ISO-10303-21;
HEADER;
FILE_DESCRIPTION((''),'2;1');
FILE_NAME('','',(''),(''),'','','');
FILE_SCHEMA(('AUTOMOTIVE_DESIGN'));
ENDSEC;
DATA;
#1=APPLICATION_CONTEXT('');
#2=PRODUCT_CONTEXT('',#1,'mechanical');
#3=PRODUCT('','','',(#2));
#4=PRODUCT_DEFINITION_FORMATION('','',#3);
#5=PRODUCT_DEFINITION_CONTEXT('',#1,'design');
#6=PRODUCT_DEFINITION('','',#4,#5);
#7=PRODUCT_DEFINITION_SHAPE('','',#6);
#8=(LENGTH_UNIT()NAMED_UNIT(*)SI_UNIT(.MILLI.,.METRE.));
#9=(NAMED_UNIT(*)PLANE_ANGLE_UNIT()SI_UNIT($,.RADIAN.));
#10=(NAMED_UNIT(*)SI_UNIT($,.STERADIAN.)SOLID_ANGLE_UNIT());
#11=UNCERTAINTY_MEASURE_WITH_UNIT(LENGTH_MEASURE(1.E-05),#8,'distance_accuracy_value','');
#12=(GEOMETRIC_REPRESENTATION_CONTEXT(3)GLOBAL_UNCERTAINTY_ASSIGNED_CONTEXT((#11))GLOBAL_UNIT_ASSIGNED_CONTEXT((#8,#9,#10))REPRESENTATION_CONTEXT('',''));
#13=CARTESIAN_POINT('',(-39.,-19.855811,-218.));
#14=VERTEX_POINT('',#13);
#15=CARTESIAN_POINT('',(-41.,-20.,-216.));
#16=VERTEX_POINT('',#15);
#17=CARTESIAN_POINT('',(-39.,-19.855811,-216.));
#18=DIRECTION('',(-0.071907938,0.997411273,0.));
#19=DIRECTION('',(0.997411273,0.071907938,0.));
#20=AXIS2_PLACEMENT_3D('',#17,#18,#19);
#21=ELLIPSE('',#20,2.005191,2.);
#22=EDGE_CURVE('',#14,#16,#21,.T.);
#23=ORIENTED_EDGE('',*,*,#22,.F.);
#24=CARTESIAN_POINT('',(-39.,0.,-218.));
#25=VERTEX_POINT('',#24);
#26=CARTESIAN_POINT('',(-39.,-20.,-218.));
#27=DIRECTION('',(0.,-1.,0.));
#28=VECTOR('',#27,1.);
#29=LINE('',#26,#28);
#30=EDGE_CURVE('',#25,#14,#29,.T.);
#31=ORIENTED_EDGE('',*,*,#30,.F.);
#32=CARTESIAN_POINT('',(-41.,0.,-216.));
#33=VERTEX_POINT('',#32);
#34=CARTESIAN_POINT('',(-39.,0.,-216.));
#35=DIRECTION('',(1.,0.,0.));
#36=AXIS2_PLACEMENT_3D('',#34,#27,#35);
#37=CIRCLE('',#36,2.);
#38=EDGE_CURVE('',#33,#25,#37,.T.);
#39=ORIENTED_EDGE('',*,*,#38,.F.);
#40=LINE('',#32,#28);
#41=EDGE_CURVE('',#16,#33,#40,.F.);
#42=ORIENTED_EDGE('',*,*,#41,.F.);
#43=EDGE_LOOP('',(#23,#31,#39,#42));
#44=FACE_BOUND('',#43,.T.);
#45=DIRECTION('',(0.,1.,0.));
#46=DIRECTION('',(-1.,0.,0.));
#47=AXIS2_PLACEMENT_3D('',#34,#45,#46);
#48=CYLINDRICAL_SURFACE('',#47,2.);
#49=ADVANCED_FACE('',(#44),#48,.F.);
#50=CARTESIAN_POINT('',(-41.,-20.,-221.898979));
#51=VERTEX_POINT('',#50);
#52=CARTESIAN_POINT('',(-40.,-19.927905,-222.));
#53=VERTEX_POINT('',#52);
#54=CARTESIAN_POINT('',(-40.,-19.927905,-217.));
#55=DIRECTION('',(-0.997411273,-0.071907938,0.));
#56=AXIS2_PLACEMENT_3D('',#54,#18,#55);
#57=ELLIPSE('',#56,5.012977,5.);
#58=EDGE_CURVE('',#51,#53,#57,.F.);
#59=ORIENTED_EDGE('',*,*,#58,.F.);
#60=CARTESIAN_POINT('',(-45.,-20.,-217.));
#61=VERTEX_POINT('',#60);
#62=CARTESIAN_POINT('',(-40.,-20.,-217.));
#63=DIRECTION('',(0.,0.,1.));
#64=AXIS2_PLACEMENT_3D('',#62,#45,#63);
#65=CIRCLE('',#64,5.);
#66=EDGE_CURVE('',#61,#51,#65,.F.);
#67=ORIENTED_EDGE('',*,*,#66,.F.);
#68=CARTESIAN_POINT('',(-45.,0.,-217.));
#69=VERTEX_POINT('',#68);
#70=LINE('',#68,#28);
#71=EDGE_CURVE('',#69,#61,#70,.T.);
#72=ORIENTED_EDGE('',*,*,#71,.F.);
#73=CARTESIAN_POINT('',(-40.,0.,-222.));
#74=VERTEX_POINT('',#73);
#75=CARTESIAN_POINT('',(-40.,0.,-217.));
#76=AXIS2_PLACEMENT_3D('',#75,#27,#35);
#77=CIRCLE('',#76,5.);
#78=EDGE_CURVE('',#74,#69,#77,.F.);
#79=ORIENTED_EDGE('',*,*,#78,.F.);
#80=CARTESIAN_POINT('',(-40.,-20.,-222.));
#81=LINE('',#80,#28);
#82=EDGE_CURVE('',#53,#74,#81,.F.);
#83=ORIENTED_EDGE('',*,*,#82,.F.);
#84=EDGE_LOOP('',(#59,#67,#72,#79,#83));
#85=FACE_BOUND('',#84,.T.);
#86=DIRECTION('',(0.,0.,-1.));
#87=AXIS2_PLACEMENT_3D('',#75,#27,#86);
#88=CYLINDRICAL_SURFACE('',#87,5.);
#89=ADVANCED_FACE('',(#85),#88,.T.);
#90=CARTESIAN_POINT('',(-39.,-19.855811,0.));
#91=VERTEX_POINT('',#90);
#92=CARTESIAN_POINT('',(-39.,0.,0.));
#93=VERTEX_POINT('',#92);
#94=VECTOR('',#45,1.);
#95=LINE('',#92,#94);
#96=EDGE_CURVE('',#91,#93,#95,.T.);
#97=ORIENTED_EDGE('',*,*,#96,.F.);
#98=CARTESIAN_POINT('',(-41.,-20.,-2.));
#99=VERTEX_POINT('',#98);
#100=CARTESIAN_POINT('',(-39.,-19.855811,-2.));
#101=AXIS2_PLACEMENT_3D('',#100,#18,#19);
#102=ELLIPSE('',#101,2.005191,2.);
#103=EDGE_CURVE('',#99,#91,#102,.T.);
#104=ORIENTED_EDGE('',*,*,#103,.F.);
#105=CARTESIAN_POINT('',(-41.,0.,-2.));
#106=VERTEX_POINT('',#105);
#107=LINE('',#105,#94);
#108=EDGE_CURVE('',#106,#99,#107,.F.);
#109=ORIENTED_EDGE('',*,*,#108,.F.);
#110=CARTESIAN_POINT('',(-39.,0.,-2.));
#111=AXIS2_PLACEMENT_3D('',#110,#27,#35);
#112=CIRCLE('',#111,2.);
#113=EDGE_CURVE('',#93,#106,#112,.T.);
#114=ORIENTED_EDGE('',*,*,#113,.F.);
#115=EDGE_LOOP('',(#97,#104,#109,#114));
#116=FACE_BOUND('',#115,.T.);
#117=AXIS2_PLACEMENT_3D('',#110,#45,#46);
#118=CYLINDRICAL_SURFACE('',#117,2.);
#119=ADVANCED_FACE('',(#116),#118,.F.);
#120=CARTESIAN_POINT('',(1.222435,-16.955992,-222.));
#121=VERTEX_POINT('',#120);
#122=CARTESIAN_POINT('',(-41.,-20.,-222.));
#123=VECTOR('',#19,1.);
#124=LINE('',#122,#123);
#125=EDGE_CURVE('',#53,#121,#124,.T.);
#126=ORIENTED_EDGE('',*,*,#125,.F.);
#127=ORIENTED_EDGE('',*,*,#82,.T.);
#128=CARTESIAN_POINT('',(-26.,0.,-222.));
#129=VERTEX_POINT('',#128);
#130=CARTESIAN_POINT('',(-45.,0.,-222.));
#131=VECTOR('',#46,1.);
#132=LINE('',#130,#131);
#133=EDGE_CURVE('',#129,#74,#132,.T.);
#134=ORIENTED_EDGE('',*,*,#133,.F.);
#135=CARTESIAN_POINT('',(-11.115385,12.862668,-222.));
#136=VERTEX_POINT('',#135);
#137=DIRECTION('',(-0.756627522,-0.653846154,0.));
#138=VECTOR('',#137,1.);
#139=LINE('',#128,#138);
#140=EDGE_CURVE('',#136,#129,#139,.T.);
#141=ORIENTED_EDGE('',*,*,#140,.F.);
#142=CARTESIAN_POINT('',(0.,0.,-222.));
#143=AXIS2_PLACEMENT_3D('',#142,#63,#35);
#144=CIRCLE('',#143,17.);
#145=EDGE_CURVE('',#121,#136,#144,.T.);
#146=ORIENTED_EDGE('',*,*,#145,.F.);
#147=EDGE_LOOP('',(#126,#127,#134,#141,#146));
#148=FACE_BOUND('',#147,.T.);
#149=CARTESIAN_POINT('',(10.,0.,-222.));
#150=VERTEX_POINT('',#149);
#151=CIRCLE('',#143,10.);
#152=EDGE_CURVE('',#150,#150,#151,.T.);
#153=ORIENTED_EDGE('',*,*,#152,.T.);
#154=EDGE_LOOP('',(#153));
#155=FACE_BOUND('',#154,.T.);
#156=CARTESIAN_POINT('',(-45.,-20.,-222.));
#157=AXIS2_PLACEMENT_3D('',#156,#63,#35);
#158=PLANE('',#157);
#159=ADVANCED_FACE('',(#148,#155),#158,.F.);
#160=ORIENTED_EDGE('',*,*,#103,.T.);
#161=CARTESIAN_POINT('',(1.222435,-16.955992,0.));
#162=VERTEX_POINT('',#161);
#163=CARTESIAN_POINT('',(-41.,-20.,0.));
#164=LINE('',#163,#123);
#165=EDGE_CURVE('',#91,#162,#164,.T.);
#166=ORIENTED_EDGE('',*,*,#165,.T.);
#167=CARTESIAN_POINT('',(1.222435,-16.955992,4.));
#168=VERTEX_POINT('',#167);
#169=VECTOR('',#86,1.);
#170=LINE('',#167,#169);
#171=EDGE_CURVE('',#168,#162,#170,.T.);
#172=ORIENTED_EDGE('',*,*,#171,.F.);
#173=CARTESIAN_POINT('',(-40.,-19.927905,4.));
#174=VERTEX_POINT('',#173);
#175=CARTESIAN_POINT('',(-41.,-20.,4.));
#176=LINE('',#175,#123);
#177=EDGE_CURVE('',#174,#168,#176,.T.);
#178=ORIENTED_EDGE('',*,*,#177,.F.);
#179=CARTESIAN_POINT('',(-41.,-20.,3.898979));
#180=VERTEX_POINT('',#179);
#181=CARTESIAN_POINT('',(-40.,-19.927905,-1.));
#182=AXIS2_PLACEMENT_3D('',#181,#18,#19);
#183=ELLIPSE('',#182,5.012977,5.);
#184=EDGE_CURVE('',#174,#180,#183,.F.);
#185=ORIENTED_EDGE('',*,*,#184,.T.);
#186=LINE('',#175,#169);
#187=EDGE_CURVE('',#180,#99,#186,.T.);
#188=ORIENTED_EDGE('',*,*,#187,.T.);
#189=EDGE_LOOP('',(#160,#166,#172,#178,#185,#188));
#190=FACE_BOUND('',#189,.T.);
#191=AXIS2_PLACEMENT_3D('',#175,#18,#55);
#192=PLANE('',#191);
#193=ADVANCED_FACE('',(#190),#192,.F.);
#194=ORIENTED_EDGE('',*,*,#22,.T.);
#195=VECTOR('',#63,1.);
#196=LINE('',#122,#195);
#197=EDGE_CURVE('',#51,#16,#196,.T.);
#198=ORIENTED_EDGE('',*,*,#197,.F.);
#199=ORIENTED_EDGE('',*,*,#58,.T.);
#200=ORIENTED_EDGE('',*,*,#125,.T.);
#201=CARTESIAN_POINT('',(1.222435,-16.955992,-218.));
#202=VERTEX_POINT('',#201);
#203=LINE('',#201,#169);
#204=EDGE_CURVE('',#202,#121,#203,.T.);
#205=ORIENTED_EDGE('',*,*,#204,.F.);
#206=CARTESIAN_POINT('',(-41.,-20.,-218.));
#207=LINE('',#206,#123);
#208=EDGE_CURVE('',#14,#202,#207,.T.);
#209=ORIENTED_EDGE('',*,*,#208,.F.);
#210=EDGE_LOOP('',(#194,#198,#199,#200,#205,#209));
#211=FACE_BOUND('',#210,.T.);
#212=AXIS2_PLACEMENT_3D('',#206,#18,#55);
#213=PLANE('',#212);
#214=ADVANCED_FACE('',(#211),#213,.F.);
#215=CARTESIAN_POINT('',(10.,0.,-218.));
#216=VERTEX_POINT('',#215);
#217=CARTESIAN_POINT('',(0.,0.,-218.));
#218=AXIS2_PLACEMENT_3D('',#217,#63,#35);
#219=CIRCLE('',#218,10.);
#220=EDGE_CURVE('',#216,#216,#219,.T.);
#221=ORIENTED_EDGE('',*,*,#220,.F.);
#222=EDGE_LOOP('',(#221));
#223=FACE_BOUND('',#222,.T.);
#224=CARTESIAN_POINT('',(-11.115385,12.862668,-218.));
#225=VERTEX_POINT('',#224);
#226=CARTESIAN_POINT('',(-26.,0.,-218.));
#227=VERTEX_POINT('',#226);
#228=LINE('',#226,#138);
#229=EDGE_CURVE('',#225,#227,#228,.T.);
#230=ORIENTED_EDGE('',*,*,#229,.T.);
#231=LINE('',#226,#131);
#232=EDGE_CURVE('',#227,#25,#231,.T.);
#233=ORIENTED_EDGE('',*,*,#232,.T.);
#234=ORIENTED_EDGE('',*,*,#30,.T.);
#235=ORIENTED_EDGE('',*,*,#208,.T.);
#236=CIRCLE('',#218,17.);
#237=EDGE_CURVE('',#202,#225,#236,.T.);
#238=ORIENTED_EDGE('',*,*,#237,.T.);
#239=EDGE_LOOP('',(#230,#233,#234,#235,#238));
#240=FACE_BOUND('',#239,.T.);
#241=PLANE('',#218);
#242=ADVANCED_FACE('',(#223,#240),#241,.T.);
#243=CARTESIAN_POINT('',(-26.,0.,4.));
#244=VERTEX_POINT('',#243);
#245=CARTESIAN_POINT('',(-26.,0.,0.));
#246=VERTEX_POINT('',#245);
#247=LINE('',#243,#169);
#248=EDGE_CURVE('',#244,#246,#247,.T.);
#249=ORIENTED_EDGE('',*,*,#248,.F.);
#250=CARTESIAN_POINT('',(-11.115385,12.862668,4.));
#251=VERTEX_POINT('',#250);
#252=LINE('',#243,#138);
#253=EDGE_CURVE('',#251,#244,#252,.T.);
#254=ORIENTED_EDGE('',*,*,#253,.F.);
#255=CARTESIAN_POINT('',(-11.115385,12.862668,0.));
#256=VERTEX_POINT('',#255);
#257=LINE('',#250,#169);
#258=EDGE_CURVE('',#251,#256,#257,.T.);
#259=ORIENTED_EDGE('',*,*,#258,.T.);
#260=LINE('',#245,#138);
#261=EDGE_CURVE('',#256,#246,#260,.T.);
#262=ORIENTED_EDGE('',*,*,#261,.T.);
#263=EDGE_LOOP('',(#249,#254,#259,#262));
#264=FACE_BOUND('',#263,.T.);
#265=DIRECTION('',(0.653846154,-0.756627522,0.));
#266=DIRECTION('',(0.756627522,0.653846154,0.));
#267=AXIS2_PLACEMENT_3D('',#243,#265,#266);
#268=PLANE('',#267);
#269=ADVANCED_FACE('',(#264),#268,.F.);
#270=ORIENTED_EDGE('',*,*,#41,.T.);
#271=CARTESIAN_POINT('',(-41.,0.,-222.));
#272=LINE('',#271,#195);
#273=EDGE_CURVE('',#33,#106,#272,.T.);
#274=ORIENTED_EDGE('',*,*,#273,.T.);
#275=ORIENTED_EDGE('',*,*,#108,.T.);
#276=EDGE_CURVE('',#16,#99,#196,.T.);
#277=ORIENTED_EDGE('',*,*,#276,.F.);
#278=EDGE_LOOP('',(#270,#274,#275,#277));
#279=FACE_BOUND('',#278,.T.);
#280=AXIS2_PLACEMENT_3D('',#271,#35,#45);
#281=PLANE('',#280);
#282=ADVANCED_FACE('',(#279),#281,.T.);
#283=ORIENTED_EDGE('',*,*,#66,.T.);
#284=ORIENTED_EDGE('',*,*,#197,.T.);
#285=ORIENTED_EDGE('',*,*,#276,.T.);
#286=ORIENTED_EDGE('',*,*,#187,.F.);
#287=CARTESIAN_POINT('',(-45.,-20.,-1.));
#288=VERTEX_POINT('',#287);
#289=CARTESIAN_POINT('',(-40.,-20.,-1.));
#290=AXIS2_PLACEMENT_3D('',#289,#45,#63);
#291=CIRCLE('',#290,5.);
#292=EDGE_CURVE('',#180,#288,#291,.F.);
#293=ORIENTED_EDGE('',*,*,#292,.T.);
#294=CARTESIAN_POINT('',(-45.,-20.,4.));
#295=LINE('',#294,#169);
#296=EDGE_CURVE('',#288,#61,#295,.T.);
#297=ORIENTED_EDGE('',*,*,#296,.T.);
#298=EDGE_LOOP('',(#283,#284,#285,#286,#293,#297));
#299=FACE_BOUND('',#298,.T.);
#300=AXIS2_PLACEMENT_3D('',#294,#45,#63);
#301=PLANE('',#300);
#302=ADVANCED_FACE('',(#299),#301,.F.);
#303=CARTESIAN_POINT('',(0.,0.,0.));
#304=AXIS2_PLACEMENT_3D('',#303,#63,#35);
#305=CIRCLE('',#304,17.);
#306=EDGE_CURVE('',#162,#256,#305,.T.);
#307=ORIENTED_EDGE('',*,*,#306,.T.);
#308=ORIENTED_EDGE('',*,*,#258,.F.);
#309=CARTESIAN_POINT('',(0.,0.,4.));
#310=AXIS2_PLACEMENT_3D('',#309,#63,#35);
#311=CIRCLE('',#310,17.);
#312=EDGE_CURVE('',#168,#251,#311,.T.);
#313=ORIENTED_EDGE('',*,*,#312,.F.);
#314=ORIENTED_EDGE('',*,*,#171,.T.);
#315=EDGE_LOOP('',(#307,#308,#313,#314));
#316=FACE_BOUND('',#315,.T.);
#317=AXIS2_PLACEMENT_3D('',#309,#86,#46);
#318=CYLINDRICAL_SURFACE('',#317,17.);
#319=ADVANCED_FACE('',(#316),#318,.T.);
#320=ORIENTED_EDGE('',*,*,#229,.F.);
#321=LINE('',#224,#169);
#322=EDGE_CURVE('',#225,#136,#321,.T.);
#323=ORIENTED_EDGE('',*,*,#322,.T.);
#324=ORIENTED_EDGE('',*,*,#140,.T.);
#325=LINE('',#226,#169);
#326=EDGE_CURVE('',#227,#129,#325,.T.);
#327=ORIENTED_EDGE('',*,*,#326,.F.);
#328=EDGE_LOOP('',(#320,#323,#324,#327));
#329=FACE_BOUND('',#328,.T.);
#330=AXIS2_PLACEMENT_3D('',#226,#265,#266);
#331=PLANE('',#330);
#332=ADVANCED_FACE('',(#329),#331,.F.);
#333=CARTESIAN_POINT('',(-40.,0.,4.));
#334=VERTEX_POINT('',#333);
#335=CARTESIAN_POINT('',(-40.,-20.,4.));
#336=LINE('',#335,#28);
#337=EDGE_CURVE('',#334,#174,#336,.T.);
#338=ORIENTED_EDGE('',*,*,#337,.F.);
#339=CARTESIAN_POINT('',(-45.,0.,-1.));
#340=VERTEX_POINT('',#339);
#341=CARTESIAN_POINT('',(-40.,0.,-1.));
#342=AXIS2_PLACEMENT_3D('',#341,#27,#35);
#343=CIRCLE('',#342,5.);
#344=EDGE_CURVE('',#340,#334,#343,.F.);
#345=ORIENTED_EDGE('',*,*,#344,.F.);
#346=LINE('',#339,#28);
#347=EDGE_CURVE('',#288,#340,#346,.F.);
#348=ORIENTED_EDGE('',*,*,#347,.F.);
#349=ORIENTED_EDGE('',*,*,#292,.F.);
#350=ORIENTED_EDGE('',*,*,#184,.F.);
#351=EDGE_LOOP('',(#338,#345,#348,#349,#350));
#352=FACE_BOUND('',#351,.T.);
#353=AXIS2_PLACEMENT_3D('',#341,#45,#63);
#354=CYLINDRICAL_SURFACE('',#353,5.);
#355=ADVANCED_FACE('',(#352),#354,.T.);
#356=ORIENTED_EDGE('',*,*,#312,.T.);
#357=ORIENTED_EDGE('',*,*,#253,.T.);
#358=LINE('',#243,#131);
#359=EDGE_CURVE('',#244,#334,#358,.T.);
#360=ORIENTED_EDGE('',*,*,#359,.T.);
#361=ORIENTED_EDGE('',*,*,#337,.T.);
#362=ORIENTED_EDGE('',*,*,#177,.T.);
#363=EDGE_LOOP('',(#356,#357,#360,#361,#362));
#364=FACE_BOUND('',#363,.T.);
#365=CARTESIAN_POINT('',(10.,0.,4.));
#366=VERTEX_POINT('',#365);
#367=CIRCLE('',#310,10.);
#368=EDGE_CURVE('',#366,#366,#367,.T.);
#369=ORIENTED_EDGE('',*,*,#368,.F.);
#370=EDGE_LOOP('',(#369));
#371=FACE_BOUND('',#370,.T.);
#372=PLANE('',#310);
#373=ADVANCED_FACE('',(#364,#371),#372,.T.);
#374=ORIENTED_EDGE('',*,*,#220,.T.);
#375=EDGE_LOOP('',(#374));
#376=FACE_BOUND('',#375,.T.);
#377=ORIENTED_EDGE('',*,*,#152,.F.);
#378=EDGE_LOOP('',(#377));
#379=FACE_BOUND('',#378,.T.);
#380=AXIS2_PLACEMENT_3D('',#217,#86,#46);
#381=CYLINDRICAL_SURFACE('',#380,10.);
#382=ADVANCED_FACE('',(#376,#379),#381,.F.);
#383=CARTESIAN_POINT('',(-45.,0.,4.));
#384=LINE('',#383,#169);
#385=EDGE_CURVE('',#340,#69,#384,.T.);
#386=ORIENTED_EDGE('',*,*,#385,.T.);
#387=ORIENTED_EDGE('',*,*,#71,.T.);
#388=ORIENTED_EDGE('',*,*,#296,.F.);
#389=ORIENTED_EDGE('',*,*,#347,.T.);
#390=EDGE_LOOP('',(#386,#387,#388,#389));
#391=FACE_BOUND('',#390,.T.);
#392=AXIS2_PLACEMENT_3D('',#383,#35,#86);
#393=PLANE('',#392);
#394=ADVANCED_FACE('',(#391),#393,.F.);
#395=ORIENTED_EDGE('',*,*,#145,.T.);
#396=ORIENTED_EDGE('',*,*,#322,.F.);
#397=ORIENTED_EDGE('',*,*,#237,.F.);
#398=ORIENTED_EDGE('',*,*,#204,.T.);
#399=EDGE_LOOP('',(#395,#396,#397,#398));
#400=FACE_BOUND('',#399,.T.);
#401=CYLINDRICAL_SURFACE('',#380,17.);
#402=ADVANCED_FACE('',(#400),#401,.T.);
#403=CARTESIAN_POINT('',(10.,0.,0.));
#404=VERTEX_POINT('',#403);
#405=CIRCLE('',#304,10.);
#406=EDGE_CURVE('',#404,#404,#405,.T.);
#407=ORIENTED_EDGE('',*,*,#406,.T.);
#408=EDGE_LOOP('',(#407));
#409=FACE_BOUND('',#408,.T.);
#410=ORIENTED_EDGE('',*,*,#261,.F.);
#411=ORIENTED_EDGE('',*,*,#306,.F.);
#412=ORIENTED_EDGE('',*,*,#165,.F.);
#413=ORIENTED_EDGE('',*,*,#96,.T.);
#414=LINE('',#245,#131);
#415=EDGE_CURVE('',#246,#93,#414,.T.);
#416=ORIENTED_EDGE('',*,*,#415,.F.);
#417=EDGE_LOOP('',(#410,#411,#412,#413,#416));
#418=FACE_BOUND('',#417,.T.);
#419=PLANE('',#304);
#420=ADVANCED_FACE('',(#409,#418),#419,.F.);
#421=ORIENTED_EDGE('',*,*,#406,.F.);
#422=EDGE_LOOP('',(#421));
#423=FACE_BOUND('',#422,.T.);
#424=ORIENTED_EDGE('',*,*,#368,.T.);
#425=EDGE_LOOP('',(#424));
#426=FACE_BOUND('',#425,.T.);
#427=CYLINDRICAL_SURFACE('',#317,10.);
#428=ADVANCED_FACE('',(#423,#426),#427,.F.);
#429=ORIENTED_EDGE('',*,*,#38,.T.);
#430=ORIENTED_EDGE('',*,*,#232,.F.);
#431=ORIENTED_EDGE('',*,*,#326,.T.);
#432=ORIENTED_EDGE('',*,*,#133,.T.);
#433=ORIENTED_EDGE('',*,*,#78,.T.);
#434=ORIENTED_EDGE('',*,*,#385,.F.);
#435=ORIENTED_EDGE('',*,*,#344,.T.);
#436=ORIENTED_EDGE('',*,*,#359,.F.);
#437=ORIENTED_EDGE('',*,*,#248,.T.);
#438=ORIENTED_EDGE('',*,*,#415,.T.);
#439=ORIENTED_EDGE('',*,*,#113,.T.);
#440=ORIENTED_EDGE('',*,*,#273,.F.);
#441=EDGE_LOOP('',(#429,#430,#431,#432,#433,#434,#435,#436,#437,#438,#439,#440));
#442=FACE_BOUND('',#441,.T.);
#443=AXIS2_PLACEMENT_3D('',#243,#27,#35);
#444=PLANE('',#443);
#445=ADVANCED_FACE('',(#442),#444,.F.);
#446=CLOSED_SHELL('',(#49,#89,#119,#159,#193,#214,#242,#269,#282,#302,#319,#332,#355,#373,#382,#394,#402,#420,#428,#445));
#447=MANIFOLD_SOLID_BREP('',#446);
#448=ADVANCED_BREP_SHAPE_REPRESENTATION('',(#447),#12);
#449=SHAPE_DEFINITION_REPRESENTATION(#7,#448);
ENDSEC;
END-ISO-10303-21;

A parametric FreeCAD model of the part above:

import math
import FreeCAD as App
import Part
import Sketcher
from FreeCAD import Vector


def edges_at(feature, points):
    """Names of the edges that pass closest to the given points."""
    edges = feature.Shape.Edges
    near = lambda p: min(range(len(edges)), key=lambda i: edges[i].distToShape(Part.Vertex(*p))[0])
    return sorted({f"Edge{near(p) + 1}" for p in points})


def add_polygon(sketch, points):
    """Adds a closed chain of lines whose ends are joined by coincident constraints."""
    first, n = sketch.GeometryCount, len(points)
    for a, b in zip(points, points[1:] + points[:1]):
        sketch.addGeometry(Part.LineSegment(App.Vector(*a, 0), App.Vector(*b, 0)), False)
    for i in range(n):
        sketch.addConstraint(Sketcher.Constraint("Coincident", first + i, 2, first + (i + 1) % n, 1))

doc = App.newDocument("Part")
body = doc.addObject("PartDesign::Body", "Body")

# Sketch on XY plane
sketch1 = body.newObject("Sketcher::SketchObject", "Sketch")
sketch1.AttachmentSupport = (doc.getObject("XY_Plane"), [""])
sketch1.MapMode = "FlatFace"
sketch1.addGeometry([
    Part.LineSegment(Vector(-11.115385, 12.862668, 0), Vector(-26, 0, 0)),  # 0
    Part.LineSegment(Vector(-26, 0, 0), Vector(-45, 0, 0)),  # 1
    Part.LineSegment(Vector(-45, 0, 0), Vector(-45, -20, 0)),  # 2
    Part.LineSegment(Vector(-45, -20, 0), Vector(-41, -20, 0)),  # 3
    Part.LineSegment(Vector(-41, -20, 0), Vector(1.222435, -16.955992, 0)),  # 4
    Part.ArcOfCircle(Part.Circle(Vector(0, 0, 0), Vector(0, 0, 1), 17), math.radians(-85.87642), math.radians(130.832217)),  # 5
    Part.Circle(Vector(0, 0, 0), Vector(0, 0, 1), 10),  # 6
], False)
sketch1.addConstraint([
    Sketcher.Constraint("Coincident", 0, 2, 1, 1),
    Sketcher.Constraint("Coincident", 1, 2, 2, 1),
    Sketcher.Constraint("Coincident", 2, 2, 3, 1),
    Sketcher.Constraint("Coincident", 3, 2, 4, 1),
    Sketcher.Constraint("Tangent", 4, 2, 5, 1),
    Sketcher.Constraint("Tangent", 5, 2, 0, 1),
    Sketcher.Constraint("Horizontal", 1),
    Sketcher.Constraint("Vertical", 2),
    Sketcher.Constraint("Horizontal", 3),
    Sketcher.Constraint("Coincident", 5, 3, -1, 1),
    Sketcher.Constraint("Coincident", 6, 3, -1, 1),
    Sketcher.Constraint("PointOnObject", 0, 2, -1),
    Sketcher.Constraint("Diameter", 6, 20.0),
    Sketcher.Constraint("Radius", 5, 17.0),
    Sketcher.Constraint("DistanceX", 1, 2, 1, 1, 19.0),
    Sketcher.Constraint("DistanceX", 3, 1, 3, 2, 4.0),
    Sketcher.Constraint("DistanceY", 2, 2, 2, 1, 20.0),
    Sketcher.Constraint("DistanceX", 0, 2, -1, 1, 26.0),
])
pad1 = body.newObject("PartDesign::Pad", "Pad")
pad1.Profile = sketch1
pad1.Length = 4

# Sketch on XY plane
sketch2 = body.newObject("Sketcher::SketchObject", "Sketch001")
sketch2.AttachmentSupport = (doc.getObject("XY_Plane"), [""])
sketch2.MapMode = "FlatFace"
sketch2.AttachmentOffset = App.Placement(Vector(0, 0, 4), App.Rotation())
add_polygon(sketch2, [(-45, 0), (-45, -20), (-41, -20), (-41, 0)])  # lines 0-3
sketch2.addConstraint([
    Sketcher.Constraint("Vertical", 0),
    Sketcher.Constraint("Horizontal", 1),
    Sketcher.Constraint("Vertical", 2),
    Sketcher.Constraint("Horizontal", 3),
    Sketcher.Constraint("PointOnObject", 2, 2, -1),
    Sketcher.Constraint("DistanceX", 1, 1, 1, 2, 4.0),
    Sketcher.Constraint("DistanceY", 0, 2, 0, 1, 20.0),
    Sketcher.Constraint("DistanceX", 0, 2, -1, 1, 45.0),
])
pad2 = body.newObject("PartDesign::Pad", "Pad001")
pad2.Profile = sketch2
pad2.Length = 226
pad2.Reversed = True
doc.recompute()

linearpattern = body.newObject("PartDesign::LinearPattern", "LinearPattern")
linearpattern.Originals = [pad1]
linearpattern.Direction = (doc.getObject("Z_Axis"), [""])
linearpattern.Mode = "offset"
linearpattern.Offset = 222
linearpattern.Occurrences = 2
linearpattern.Reversed = True
body.Tip = linearpattern
doc.recompute()

fillet = body.newObject("PartDesign::Fillet", "Fillet")
fillet.Base = (linearpattern, edges_at(linearpattern, [(-45, -10, -222), (-45, -10, 4)]))
fillet.Radius = 5
doc.recompute()

fillet2 = body.newObject("PartDesign::Fillet", "Fillet001")
fillet2.Base = (fillet, edges_at(fillet, [(-41, -10, 0), (-41, -10, -218)]))
fillet2.Radius = 2

doc.recompute()
